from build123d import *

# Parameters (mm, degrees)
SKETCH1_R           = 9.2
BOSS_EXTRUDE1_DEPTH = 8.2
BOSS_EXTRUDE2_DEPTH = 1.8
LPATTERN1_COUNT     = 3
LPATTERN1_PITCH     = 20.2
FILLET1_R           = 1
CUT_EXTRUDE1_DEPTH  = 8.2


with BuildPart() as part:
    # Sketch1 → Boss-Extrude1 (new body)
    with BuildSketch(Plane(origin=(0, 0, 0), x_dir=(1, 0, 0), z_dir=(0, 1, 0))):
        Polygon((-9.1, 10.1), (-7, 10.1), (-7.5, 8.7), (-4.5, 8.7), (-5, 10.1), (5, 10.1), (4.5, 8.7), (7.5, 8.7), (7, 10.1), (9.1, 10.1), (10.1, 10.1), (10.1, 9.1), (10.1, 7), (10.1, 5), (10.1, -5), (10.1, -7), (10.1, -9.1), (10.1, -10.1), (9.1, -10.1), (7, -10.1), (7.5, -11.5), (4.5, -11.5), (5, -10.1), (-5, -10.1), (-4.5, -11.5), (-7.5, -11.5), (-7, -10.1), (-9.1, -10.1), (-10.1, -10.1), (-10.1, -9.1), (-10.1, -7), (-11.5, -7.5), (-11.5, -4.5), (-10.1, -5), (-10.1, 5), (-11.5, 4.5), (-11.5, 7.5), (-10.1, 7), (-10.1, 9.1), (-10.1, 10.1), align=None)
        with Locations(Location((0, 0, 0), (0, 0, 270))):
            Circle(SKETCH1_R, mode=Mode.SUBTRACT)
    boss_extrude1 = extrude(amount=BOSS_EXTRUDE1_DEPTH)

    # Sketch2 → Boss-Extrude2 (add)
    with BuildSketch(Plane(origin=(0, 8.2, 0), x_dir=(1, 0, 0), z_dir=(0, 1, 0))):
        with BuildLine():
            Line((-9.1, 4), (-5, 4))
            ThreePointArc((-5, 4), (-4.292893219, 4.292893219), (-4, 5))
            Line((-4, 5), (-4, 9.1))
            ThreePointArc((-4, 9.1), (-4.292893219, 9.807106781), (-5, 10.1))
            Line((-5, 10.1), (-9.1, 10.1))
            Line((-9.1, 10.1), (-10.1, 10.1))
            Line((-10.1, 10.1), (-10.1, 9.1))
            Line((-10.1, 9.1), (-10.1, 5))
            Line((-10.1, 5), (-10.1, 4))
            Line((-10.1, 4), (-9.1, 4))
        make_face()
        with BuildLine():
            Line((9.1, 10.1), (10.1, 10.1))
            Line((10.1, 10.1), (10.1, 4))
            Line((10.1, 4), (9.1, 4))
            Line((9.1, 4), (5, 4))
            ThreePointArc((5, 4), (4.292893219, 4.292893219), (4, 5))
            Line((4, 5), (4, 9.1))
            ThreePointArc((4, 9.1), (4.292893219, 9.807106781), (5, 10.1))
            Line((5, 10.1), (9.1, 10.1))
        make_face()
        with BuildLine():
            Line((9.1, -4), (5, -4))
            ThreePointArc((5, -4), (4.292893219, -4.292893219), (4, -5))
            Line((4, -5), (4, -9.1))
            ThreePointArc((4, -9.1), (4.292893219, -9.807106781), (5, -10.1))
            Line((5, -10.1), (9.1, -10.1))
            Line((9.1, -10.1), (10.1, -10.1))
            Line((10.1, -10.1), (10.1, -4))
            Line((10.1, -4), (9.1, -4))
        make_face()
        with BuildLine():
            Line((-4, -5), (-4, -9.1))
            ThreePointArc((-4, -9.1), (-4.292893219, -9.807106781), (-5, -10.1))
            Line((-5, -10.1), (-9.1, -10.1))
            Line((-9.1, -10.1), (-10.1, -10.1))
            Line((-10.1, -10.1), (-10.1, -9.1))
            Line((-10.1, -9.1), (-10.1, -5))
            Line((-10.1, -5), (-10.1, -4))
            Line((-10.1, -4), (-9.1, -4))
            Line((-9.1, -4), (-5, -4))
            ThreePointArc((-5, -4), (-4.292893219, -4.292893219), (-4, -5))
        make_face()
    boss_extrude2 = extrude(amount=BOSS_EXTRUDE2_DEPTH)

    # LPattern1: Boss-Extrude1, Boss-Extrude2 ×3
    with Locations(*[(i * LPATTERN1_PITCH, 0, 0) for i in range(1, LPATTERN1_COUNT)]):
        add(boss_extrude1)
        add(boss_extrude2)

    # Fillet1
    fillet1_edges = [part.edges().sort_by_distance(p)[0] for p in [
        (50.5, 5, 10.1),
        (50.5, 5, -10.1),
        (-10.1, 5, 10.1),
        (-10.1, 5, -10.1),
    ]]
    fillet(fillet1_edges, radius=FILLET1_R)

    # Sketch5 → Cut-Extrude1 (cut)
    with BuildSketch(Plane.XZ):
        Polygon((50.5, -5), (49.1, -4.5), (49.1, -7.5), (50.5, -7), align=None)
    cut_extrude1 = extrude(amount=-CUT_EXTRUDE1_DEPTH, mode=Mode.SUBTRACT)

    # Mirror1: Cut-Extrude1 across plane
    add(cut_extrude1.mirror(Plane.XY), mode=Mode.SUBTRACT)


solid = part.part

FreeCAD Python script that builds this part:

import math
import FreeCAD as App
import Part
import Sketcher
from FreeCAD import Vector


def edges_at(feature, points):
    """Names of the edges that pass closest to the given points."""
    edges = feature.Shape.Edges
    near = lambda p: min(range(len(edges)), key=lambda i: edges[i].distToShape(Part.Vertex(*p))[0])
    return sorted({f"Edge{near(p) + 1}" for p in points})

doc = App.newDocument("Part")
params = doc.addObject("Spreadsheet::Sheet", "Params")
for row, (alias, value) in enumerate([
    ("sketch1_diameter", "18.4 mm"),
    ("sketch1_width", "3 mm"),
    ("sketch1_width2", "10 mm"),
    ("sketch1_width3", "3.1 mm"),
    ("sketch1_height", "20.2 mm"),
    ("pad1_length", "8.2 mm"),
    ("sketch2_radius", "1 mm"),
    ("sketch2_width", "5.1 mm"),
    ("sketch2_height", "4.1 mm"),
    ("pad2_length", "1.8 mm"),
    ("linearpattern_pitch", "20.2 mm"),
    ("fillet_radius", "1 mm"),
    ("sketch3_height", "3 mm"),
    ("sketch3_height2", "2 mm"),
    ("pocket1_length", "8.2 mm"),
], start=1):
    params.set(f"A{row}", alias)
    params.set(f"B{row}", "=" + value)
    params.setAlias(f"B{row}", alias)

body = doc.addObject("PartDesign::Body", "Body")

# Sketch on XZ plane
sketch1 = body.newObject("Sketcher::SketchObject", "Sketch")
sketch1.AttachmentSupport = (doc.getObject("XZ_Plane"), [""])
sketch1.MapMode = "FlatFace"
sketch1.addGeometry([
    Part.LineSegment(Vector(-7, -10.1, 0), Vector(-10.1, -10.1, 0)),  # 0
    Part.LineSegment(Vector(-10.1, -10.1, 0), Vector(-10.1, -7, 0)),  # 1
    Part.LineSegment(Vector(-10.1, -7, 0), Vector(-11.5, -7.5, 0)),  # 2
    Part.LineSegment(Vector(-11.5, -7.5, 0), Vector(-11.5, -4.5, 0)),  # 3
    Part.LineSegment(Vector(-11.5, -4.5, 0), Vector(-10.1, -5, 0)),  # 4
    Part.LineSegment(Vector(-10.1, -5, 0), Vector(-10.1, 5, 0)),  # 5
    Part.LineSegment(Vector(-10.1, 5, 0), Vector(-11.5, 4.5, 0)),  # 6
    Part.LineSegment(Vector(-11.5, 4.5, 0), Vector(-11.5, 7.5, 0)),  # 7
    Part.LineSegment(Vector(-11.5, 7.5, 0), Vector(-10.1, 7, 0)),  # 8
    Part.LineSegment(Vector(-10.1, 7, 0), Vector(-10.1, 10.1, 0)),  # 9
    Part.LineSegment(Vector(-10.1, 10.1, 0), Vector(-7, 10.1, 0)),  # 10
    Part.LineSegment(Vector(-7, 10.1, 0), Vector(-7.5, 11.5, 0)),  # 11
    Part.LineSegment(Vector(-7.5, 11.5, 0), Vector(-4.5, 11.5, 0)),  # 12
    Part.LineSegment(Vector(-4.5, 11.5, 0), Vector(-5, 10.1, 0)),  # 13
    Part.LineSegment(Vector(-5, 10.1, 0), Vector(5, 10.1, 0)),  # 14
    Part.LineSegment(Vector(5, 10.1, 0), Vector(4.5, 11.5, 0)),  # 15
    Part.LineSegment(Vector(4.5, 11.5, 0), Vector(7.5, 11.5, 0)),  # 16
    Part.LineSegment(Vector(7.5, 11.5, 0), Vector(7, 10.1, 0)),  # 17
    Part.LineSegment(Vector(7, 10.1, 0), Vector(10.1, 10.1, 0)),  # 18
    Part.LineSegment(Vector(10.1, 10.1, 0), Vector(10.1, -10.1, 0)),  # 19
    Part.LineSegment(Vector(10.1, -10.1, 0), Vector(7, -10.1, 0)),  # 20
    Part.LineSegment(Vector(7, -10.1, 0), Vector(7.5, -8.7, 0)),  # 21
    Part.LineSegment(Vector(7.5, -8.7, 0), Vector(4.5, -8.7, 0)),  # 22
    Part.LineSegment(Vector(4.5, -8.7, 0), Vector(5, -10.1, 0)),  # 23
    Part.LineSegment(Vector(5, -10.1, 0), Vector(-5, -10.1, 0)),  # 24
    Part.LineSegment(Vector(-5, -10.1, 0), Vector(-4.5, -8.7, 0)),  # 25
    Part.LineSegment(Vector(-4.5, -8.7, 0), Vector(-7.5, -8.7, 0)),  # 26
    Part.LineSegment(Vector(-7.5, -8.7, 0), Vector(-7, -10.1, 0)),  # 27
    Part.Circle(Vector(0, 0, 0), Vector(0, 0, 1), 9.2),  # 28
], False)
sketch1.addConstraint([
    Sketcher.Constraint("Coincident", 0, 2, 1, 1),
    Sketcher.Constraint("Coincident", 1, 2, 2, 1),
    Sketcher.Constraint("Coincident", 2, 2, 3, 1),
    Sketcher.Constraint("Coincident", 3, 2, 4, 1),
    Sketcher.Constraint("Coincident", 4, 2, 5, 1),
    Sketcher.Constraint("Coincident", 5, 2, 6, 1),
    Sketcher.Constraint("Coincident", 6, 2, 7, 1),
    Sketcher.Constraint("Coincident", 7, 2, 8, 1),
    Sketcher.Constraint("Coincident", 8, 2, 9, 1),
    Sketcher.Constraint("Coincident", 9, 2, 10, 1),
    Sketcher.Constraint("Coincident", 10, 2, 11, 1),
    Sketcher.Constraint("Coincident", 11, 2, 12, 1),
    Sketcher.Constraint("Coincident", 12, 2, 13, 1),
    Sketcher.Constraint("Coincident", 13, 2, 14, 1),
    Sketcher.Constraint("Coincident", 14, 2, 15, 1),
    Sketcher.Constraint("Coincident", 15, 2, 16, 1),
    Sketcher.Constraint("Coincident", 16, 2, 17, 1),
    Sketcher.Constraint("Coincident", 17, 2, 18, 1),
    Sketcher.Constraint("Coincident", 18, 2, 19, 1),
    Sketcher.Constraint("Coincident", 19, 2, 20, 1),
    Sketcher.Constraint("Coincident", 20, 2, 21, 1),
    Sketcher.Constraint("Coincident", 21, 2, 22, 1),
    Sketcher.Constraint("Coincident", 22, 2, 23, 1),
    Sketcher.Constraint("Coincident", 23, 2, 24, 1),
    Sketcher.Constraint("Coincident", 24, 2, 25, 1),
    Sketcher.Constraint("Coincident", 25, 2, 26, 1),
    Sketcher.Constraint("Coincident", 26, 2, 27, 1),
    Sketcher.Constraint("Coincident", 27, 2, 0, 1),
    Sketcher.Constraint("Horizontal", 0),
    Sketcher.Constraint("Vertical", 1),
    Sketcher.Constraint("Vertical", 3),
    Sketcher.Constraint("Vertical", 5),
    Sketcher.Constraint("Vertical", 7),
    Sketcher.Constraint("Vertical", 9),
    Sketcher.Constraint("Horizontal", 10),
    Sketcher.Constraint("Horizontal", 12),
    Sketcher.Constraint("Horizontal", 14),
    Sketcher.Constraint("Horizontal", 16),
    Sketcher.Constraint("Horizontal", 18),
    Sketcher.Constraint("Vertical", 19),
    Sketcher.Constraint("Horizontal", 20),
    Sketcher.Constraint("Horizontal", 22),
    Sketcher.Constraint("Horizontal", 24),
    Sketcher.Constraint("Horizontal", 26),
    Sketcher.Constraint("Coincident", 28, 3, -1, 1),
    Sketcher.Constraint("Symmetric", 0, 2, 18, 2, -1, 1),
    Sketcher.Constraint("Symmetric", 9, 2, 19, 2, -1, 1),
    Sketcher.Constraint("Symmetric", 13, 2, 23, 2, -1, 1),
    Sketcher.Constraint("Symmetric", 12, 2, 15, 2, -2),
    Sketcher.Constraint("Symmetric", 10, 2, 17, 2, -2),
    Sketcher.Constraint("Symmetric", 22, 2, 25, 2, -2),
    Sketcher.Constraint("Symmetric", 3, 2, 6, 2, -1),
    Sketcher.Constraint("Parallel", 2, 6),
    Sketcher.Constraint("Parallel", 4, 8),
    Sketcher.Constraint("Perpendicular", 6, 11),
    Sketcher.Constraint("Perpendicular", 8, 13),
    Sketcher.Constraint("Parallel", 11, 15),
    Sketcher.Constraint("Parallel", 13, 17),
    Sketcher.Constraint("Parallel", 17, 21),
    Sketcher.Constraint("Parallel", 15, 23),
    Sketcher.Constraint("Parallel", 21, 25),
    Sketcher.Constraint("Parallel", 23, 27),
    Sketcher.Constraint("Horizontal", 10, 2, 13, 2),
    Sketcher.Constraint("Vertical", 1, 2, 4, 2),
    Sketcher.Constraint("Vertical", 17, 2, 20, 2),
    Sketcher.Constraint("Vertical", 16, 2, 21, 2),
    Sketcher.Constraint("Vertical", 15, 2, 22, 2),
    Sketcher.Constraint("Vertical", 11, 2, 26, 2),
    Sketcher.Constraint("Equal", 20, 1),
    Sketcher.Constraint("Equal", 26, 3),
    Sketcher.Constraint("Equal", 24, 5),
    Sketcher.Constraint("Equal", 3, 7),
    Sketcher.Constraint("Equal", 8, 11),
    Sketcher.Constraint("Diameter", 28, 18.4),
    Sketcher.Constraint("DistanceX", 12, 1, 12, 2, 3.0),
    Sketcher.Constraint("DistanceX", 14, 1, 14, 2, 10.0),
    Sketcher.Constraint("DistanceX", 0, 2, 0, 1, 3.1),
    Sketcher.Constraint("DistanceY", 19, 2, 19, 1, 20.2),
    Sketcher.Constraint("DistanceX", 7, 2, 11, 2, 4.0),
])
sketch1.setExpression("Constraints[73]", "Params.sketch1_diameter")
sketch1.setExpression("Constraints[74]", "Params.sketch1_width")
sketch1.setExpression("Constraints[75]", "Params.sketch1_width2")
sketch1.setExpression("Constraints[76]", "Params.sketch1_width3")
sketch1.setExpression("Constraints[77]", "Params.sketch1_height")
pad1 = body.newObject("PartDesign::Pad", "Pad")
pad1.Profile = sketch1
pad1.setExpression("Length", "Params.pad1_length")
pad1.Reversed = True

# Sketch on XZ plane
sketch2 = body.newObject("Sketcher::SketchObject", "Sketch001")
sketch2.AttachmentSupport = (doc.getObject("XZ_Plane"), [""])
sketch2.MapMode = "FlatFace"
sketch2.AttachmentOffset = App.Placement(Vector(0, 0, -8.2), App.Rotation())
sketch2.addGeometry([
    Part.ArcOfCircle(Part.Circle(Vector(-5, -5, 0), Vector(0, 0, 1), 1), math.radians(0), math.radians(90)),  # 0
    Part.LineSegment(Vector(-4, -5, 0), Vector(-4, -9.1, 0)),  # 1
    Part.ArcOfCircle(Part.Circle(Vector(-5, -9.1, 0), Vector(0, 0, 1), 1), math.radians(-90), math.radians(0)),  # 2
    Part.LineSegment(Vector(-5, -10.1, 0), Vector(-10.1, -10.1, 0)),  # 3
    Part.LineSegment(Vector(-10.1, -10.1, 0), Vector(-10.1, -4, 0)),  # 4
    Part.LineSegment(Vector(-10.1, -4, 0), Vector(-5, -4, 0)),  # 5
    Part.LineSegment(Vector(10.1, -4, 0), Vector(10.1, -10.1, 0)),  # 6
    Part.LineSegment(Vector(10.1, -10.1, 0), Vector(5, -10.1, 0)),  # 7
    Part.ArcOfCircle(Part.Circle(Vector(5, -9.1, 0), Vector(0, 0, 1), 1), math.radians(-180), math.radians(-90)),  # 8
    Part.LineSegment(Vector(4, -9.1, 0), Vector(4, -5, 0)),  # 9
    Part.ArcOfCircle(Part.Circle(Vector(5, -5, 0), Vector(0, 0, 1), 1), math.radians(90), math.radians(180)),  # 10
    Part.LineSegment(Vector(5, -4, 0), Vector(10.1, -4, 0)),  # 11
    Part.ArcOfCircle(Part.Circle(Vector(5, 5, 0), Vector(0, 0, 1), 1), math.radians(-180), math.radians(-90)),  # 12
    Part.LineSegment(Vector(4, 5, 0), Vector(4, 9.1, 0)),  # 13
    Part.ArcOfCircle(Part.Circle(Vector(5, 9.1, 0), Vector(0, 0, 1), 1), math.radians(90), math.radians(180)),  # 14
    Part.LineSegment(Vector(5, 10.1, 0), Vector(10.1, 10.1, 0)),  # 15
    Part.LineSegment(Vector(10.1, 10.1, 0), Vector(10.1, 4, 0)),  # 16
    Part.LineSegment(Vector(10.1, 4, 0), Vector(5, 4, 0)),  # 17
    Part.LineSegment(Vector(-4, 9.1, 0), Vector(-4, 5, 0)),  # 18
    Part.ArcOfCircle(Part.Circle(Vector(-5, 5, 0), Vector(0, 0, 1), 1), math.radians(-90), math.radians(0)),  # 19
    Part.LineSegment(Vector(-5, 4, 0), Vector(-10.1, 4, 0)),  # 20
    Part.LineSegment(Vector(-10.1, 4, 0), Vector(-10.1, 10.1, 0)),  # 21
    Part.LineSegment(Vector(-10.1, 10.1, 0), Vector(-5, 10.1, 0)),  # 22
    Part.ArcOfCircle(Part.Circle(Vector(-5, 9.1, 0), Vector(0, 0, 1), 1), math.radians(0), math.radians(90)),  # 23
], False)
sketch2.addConstraint([
    Sketcher.Constraint("Tangent", 0, 1, 1, 1),
    Sketcher.Constraint("Tangent", 1, 2, 2, 2),
    Sketcher.Constraint("Tangent", 2, 1, 3, 1),
    Sketcher.Constraint("Coincident", 3, 2, 4, 1),
    Sketcher.Constraint("Coincident", 4, 2, 5, 1),
    Sketcher.Constraint("Tangent", 5, 2, 0, 2),
    Sketcher.Constraint("Coincident", 6, 2, 7, 1),
    Sketcher.Constraint("Tangent", 7, 2, 8, 2),
    Sketcher.Constraint("Tangent", 8, 1, 9, 1),
    Sketcher.Constraint("Tangent", 9, 2, 10, 2),
    Sketcher.Constraint("Tangent", 10, 1, 11, 1),
    Sketcher.Constraint("Coincident", 11, 2, 6, 1),
    Sketcher.Constraint("Tangent", 12, 1, 13, 1),
    Sketcher.Constraint("Tangent", 13, 2, 14, 2),
    Sketcher.Constraint("Tangent", 14, 1, 15, 1),
    Sketcher.Constraint("Coincident", 15, 2, 16, 1),
    Sketcher.Constraint("Coincident", 16, 2, 17, 1),
    Sketcher.Constraint("Tangent", 17, 2, 12, 2),
    Sketcher.Constraint("Tangent", 18, 2, 19, 2),
    Sketcher.Constraint("Tangent", 19, 1, 20, 1),
    Sketcher.Constraint("Coincident", 20, 2, 21, 1),
    Sketcher.Constraint("Coincident", 21, 2, 22, 1),
    Sketcher.Constraint("Tangent", 22, 2, 23, 2),
    Sketcher.Constraint("Tangent", 23, 1, 18, 1),
    Sketcher.Constraint("Vertical", 1),
    Sketcher.Constraint("Horizontal", 3),
    Sketcher.Constraint("Vertical", 4),
    Sketcher.Constraint("Horizontal", 5),
    Sketcher.Constraint("Vertical", 6),
    Sketcher.Constraint("Horizontal", 7),
    Sketcher.Constraint("Vertical", 9),
    Sketcher.Constraint("Horizontal", 11),
    Sketcher.Constraint("Vertical", 13),
    Sketcher.Constraint("Horizontal", 15),
    Sketcher.Constraint("Vertical", 16),
    Sketcher.Constraint("Horizontal", 17),
    Sketcher.Constraint("Vertical", 18),
    Sketcher.Constraint("Horizontal", 20),
    Sketcher.Constraint("Vertical", 21),
    Sketcher.Constraint("Horizontal", 22),
    Sketcher.Constraint("Equal", 0, 2),
    Sketcher.Constraint("Equal", 2, 8),
    Sketcher.Constraint("Equal", 8, 10),
    Sketcher.Constraint("Equal", 10, 12),
    Sketcher.Constraint("Equal", 12, 14),
    Sketcher.Constraint("Equal", 14, 19),
    Sketcher.Constraint("Equal", 19, 23),
    Sketcher.Constraint("Symmetric", 0, 3, 12, 3, -1, 1),
    Sketcher.Constraint("Symmetric", 10, 3, 19, 3, -1, 1),
    Sketcher.Constraint("Symmetric", 3, 2, 15, 2, -1, 1),
    Sketcher.Constraint("Symmetric", 6, 2, 21, 2, -1, 1),
    Sketcher.Constraint("Symmetric", 2, 3, 8, 3, -2),
    Sketcher.Constraint("Symmetric", 4, 2, 11, 2, -2),
    Sketcher.Constraint("Radius", 0, 1.0),
    Sketcher.Constraint("DistanceX", 3, 2, 3, 1, 5.1),
    Sketcher.Constraint("DistanceY", 1, 2, 1, 1, 4.1),
    Sketcher.Constraint("DistanceX", 0, 3, -1, 1, 5.0),
    Sketcher.Constraint("DistanceY", 0, 3, -1, 1, 5.0),
])
sketch2.setExpression("Constraints[53]", "Params.sketch2_radius")
sketch2.setExpression("Constraints[54]", "Params.sketch2_width")
sketch2.setExpression("Constraints[55]", "Params.sketch2_height")
pad2 = body.newObject("PartDesign::Pad", "Pad001")
pad2.Profile = sketch2
pad2.setExpression("Length", "Params.pad2_length")
pad2.Reversed = True
doc.recompute()

linearpattern = body.newObject("PartDesign::LinearPattern", "LinearPattern")
linearpattern.Originals = [pad1, pad2]
linearpattern.Direction = (doc.getObject("X_Axis"), [""])
linearpattern.Mode = "offset"
linearpattern.setExpression("Offset", "Params.linearpattern_pitch")
linearpattern.Occurrences = 3
body.Tip = linearpattern
doc.recompute()

fillet = body.newObject("PartDesign::Fillet", "Fillet")
fillet.Base = (linearpattern, edges_at(linearpattern, [
    (50.5, 5, 10.1),
    (50.5, 5, -10.1),
    (-10.1, 5, 10.1),
    (-10.1, 5, -10.1),
]))
fillet.setExpression("Radius", "Params.fillet_radius")

# Sketch on XZ plane
sketch3 = body.newObject("Sketcher::SketchObject", "Sketch002")
sketch3.AttachmentSupport = (doc.getObject("XZ_Plane"), [""])
sketch3.MapMode = "FlatFace"
sketch3.addGeometry([
    Part.LineSegment(Vector(50.5, -5, 0), Vector(49.1, -4.5, 0)),
    Part.LineSegment(Vector(49.1, -4.5, 0), Vector(49.1, -7.5, 0)),
    Part.LineSegment(Vector(49.1, -7.5, 0), Vector(50.5, -7, 0)),
    Part.LineSegment(Vector(50.5, -7, 0), Vector(50.5, -5, 0)),
], False)
sketch3.addConstraint([
    Sketcher.Constraint("Coincident", 0, 2, 1, 1),
    Sketcher.Constraint("Coincident", 1, 2, 2, 1),
    Sketcher.Constraint("Coincident", 2, 2, 3, 1),
    Sketcher.Constraint("Coincident", 3, 2, 0, 1),
    Sketcher.Constraint("Vertical", 1),
    Sketcher.Constraint("Vertical", 3),
    Sketcher.Constraint("Equal", 0, 2),
    Sketcher.Constraint("DistanceY", 1, 2, 1, 1, 3.0),
    Sketcher.Constraint("DistanceY", 3, 1, 3, 2, 2.0),
    Sketcher.Constraint("DistanceY", 2, 2, -1, 1, 7.0),
    Sketcher.Constraint("DistanceX", -1, 1, 0, 2, 49.1),
    Sketcher.Constraint("DistanceX", -1, 1, 2, 2, 50.5),
])
sketch3.setExpression("Constraints[7]", "Params.sketch3_height")
sketch3.setExpression("Constraints[8]", "Params.sketch3_height2")
pocket1 = body.newObject("PartDesign::Pocket", "Pocket")
pocket1.Profile = sketch3
pocket1.setExpression("Length", "Params.pocket1_length")
doc.recompute()

mirrored = body.newObject("PartDesign::Mirrored", "Mirrored")
mirrored.Originals = [pocket1]
mirrored.MirrorPlane = (doc.getObject("XY_Plane"), [""])
body.Tip = mirrored

doc.recompute()
